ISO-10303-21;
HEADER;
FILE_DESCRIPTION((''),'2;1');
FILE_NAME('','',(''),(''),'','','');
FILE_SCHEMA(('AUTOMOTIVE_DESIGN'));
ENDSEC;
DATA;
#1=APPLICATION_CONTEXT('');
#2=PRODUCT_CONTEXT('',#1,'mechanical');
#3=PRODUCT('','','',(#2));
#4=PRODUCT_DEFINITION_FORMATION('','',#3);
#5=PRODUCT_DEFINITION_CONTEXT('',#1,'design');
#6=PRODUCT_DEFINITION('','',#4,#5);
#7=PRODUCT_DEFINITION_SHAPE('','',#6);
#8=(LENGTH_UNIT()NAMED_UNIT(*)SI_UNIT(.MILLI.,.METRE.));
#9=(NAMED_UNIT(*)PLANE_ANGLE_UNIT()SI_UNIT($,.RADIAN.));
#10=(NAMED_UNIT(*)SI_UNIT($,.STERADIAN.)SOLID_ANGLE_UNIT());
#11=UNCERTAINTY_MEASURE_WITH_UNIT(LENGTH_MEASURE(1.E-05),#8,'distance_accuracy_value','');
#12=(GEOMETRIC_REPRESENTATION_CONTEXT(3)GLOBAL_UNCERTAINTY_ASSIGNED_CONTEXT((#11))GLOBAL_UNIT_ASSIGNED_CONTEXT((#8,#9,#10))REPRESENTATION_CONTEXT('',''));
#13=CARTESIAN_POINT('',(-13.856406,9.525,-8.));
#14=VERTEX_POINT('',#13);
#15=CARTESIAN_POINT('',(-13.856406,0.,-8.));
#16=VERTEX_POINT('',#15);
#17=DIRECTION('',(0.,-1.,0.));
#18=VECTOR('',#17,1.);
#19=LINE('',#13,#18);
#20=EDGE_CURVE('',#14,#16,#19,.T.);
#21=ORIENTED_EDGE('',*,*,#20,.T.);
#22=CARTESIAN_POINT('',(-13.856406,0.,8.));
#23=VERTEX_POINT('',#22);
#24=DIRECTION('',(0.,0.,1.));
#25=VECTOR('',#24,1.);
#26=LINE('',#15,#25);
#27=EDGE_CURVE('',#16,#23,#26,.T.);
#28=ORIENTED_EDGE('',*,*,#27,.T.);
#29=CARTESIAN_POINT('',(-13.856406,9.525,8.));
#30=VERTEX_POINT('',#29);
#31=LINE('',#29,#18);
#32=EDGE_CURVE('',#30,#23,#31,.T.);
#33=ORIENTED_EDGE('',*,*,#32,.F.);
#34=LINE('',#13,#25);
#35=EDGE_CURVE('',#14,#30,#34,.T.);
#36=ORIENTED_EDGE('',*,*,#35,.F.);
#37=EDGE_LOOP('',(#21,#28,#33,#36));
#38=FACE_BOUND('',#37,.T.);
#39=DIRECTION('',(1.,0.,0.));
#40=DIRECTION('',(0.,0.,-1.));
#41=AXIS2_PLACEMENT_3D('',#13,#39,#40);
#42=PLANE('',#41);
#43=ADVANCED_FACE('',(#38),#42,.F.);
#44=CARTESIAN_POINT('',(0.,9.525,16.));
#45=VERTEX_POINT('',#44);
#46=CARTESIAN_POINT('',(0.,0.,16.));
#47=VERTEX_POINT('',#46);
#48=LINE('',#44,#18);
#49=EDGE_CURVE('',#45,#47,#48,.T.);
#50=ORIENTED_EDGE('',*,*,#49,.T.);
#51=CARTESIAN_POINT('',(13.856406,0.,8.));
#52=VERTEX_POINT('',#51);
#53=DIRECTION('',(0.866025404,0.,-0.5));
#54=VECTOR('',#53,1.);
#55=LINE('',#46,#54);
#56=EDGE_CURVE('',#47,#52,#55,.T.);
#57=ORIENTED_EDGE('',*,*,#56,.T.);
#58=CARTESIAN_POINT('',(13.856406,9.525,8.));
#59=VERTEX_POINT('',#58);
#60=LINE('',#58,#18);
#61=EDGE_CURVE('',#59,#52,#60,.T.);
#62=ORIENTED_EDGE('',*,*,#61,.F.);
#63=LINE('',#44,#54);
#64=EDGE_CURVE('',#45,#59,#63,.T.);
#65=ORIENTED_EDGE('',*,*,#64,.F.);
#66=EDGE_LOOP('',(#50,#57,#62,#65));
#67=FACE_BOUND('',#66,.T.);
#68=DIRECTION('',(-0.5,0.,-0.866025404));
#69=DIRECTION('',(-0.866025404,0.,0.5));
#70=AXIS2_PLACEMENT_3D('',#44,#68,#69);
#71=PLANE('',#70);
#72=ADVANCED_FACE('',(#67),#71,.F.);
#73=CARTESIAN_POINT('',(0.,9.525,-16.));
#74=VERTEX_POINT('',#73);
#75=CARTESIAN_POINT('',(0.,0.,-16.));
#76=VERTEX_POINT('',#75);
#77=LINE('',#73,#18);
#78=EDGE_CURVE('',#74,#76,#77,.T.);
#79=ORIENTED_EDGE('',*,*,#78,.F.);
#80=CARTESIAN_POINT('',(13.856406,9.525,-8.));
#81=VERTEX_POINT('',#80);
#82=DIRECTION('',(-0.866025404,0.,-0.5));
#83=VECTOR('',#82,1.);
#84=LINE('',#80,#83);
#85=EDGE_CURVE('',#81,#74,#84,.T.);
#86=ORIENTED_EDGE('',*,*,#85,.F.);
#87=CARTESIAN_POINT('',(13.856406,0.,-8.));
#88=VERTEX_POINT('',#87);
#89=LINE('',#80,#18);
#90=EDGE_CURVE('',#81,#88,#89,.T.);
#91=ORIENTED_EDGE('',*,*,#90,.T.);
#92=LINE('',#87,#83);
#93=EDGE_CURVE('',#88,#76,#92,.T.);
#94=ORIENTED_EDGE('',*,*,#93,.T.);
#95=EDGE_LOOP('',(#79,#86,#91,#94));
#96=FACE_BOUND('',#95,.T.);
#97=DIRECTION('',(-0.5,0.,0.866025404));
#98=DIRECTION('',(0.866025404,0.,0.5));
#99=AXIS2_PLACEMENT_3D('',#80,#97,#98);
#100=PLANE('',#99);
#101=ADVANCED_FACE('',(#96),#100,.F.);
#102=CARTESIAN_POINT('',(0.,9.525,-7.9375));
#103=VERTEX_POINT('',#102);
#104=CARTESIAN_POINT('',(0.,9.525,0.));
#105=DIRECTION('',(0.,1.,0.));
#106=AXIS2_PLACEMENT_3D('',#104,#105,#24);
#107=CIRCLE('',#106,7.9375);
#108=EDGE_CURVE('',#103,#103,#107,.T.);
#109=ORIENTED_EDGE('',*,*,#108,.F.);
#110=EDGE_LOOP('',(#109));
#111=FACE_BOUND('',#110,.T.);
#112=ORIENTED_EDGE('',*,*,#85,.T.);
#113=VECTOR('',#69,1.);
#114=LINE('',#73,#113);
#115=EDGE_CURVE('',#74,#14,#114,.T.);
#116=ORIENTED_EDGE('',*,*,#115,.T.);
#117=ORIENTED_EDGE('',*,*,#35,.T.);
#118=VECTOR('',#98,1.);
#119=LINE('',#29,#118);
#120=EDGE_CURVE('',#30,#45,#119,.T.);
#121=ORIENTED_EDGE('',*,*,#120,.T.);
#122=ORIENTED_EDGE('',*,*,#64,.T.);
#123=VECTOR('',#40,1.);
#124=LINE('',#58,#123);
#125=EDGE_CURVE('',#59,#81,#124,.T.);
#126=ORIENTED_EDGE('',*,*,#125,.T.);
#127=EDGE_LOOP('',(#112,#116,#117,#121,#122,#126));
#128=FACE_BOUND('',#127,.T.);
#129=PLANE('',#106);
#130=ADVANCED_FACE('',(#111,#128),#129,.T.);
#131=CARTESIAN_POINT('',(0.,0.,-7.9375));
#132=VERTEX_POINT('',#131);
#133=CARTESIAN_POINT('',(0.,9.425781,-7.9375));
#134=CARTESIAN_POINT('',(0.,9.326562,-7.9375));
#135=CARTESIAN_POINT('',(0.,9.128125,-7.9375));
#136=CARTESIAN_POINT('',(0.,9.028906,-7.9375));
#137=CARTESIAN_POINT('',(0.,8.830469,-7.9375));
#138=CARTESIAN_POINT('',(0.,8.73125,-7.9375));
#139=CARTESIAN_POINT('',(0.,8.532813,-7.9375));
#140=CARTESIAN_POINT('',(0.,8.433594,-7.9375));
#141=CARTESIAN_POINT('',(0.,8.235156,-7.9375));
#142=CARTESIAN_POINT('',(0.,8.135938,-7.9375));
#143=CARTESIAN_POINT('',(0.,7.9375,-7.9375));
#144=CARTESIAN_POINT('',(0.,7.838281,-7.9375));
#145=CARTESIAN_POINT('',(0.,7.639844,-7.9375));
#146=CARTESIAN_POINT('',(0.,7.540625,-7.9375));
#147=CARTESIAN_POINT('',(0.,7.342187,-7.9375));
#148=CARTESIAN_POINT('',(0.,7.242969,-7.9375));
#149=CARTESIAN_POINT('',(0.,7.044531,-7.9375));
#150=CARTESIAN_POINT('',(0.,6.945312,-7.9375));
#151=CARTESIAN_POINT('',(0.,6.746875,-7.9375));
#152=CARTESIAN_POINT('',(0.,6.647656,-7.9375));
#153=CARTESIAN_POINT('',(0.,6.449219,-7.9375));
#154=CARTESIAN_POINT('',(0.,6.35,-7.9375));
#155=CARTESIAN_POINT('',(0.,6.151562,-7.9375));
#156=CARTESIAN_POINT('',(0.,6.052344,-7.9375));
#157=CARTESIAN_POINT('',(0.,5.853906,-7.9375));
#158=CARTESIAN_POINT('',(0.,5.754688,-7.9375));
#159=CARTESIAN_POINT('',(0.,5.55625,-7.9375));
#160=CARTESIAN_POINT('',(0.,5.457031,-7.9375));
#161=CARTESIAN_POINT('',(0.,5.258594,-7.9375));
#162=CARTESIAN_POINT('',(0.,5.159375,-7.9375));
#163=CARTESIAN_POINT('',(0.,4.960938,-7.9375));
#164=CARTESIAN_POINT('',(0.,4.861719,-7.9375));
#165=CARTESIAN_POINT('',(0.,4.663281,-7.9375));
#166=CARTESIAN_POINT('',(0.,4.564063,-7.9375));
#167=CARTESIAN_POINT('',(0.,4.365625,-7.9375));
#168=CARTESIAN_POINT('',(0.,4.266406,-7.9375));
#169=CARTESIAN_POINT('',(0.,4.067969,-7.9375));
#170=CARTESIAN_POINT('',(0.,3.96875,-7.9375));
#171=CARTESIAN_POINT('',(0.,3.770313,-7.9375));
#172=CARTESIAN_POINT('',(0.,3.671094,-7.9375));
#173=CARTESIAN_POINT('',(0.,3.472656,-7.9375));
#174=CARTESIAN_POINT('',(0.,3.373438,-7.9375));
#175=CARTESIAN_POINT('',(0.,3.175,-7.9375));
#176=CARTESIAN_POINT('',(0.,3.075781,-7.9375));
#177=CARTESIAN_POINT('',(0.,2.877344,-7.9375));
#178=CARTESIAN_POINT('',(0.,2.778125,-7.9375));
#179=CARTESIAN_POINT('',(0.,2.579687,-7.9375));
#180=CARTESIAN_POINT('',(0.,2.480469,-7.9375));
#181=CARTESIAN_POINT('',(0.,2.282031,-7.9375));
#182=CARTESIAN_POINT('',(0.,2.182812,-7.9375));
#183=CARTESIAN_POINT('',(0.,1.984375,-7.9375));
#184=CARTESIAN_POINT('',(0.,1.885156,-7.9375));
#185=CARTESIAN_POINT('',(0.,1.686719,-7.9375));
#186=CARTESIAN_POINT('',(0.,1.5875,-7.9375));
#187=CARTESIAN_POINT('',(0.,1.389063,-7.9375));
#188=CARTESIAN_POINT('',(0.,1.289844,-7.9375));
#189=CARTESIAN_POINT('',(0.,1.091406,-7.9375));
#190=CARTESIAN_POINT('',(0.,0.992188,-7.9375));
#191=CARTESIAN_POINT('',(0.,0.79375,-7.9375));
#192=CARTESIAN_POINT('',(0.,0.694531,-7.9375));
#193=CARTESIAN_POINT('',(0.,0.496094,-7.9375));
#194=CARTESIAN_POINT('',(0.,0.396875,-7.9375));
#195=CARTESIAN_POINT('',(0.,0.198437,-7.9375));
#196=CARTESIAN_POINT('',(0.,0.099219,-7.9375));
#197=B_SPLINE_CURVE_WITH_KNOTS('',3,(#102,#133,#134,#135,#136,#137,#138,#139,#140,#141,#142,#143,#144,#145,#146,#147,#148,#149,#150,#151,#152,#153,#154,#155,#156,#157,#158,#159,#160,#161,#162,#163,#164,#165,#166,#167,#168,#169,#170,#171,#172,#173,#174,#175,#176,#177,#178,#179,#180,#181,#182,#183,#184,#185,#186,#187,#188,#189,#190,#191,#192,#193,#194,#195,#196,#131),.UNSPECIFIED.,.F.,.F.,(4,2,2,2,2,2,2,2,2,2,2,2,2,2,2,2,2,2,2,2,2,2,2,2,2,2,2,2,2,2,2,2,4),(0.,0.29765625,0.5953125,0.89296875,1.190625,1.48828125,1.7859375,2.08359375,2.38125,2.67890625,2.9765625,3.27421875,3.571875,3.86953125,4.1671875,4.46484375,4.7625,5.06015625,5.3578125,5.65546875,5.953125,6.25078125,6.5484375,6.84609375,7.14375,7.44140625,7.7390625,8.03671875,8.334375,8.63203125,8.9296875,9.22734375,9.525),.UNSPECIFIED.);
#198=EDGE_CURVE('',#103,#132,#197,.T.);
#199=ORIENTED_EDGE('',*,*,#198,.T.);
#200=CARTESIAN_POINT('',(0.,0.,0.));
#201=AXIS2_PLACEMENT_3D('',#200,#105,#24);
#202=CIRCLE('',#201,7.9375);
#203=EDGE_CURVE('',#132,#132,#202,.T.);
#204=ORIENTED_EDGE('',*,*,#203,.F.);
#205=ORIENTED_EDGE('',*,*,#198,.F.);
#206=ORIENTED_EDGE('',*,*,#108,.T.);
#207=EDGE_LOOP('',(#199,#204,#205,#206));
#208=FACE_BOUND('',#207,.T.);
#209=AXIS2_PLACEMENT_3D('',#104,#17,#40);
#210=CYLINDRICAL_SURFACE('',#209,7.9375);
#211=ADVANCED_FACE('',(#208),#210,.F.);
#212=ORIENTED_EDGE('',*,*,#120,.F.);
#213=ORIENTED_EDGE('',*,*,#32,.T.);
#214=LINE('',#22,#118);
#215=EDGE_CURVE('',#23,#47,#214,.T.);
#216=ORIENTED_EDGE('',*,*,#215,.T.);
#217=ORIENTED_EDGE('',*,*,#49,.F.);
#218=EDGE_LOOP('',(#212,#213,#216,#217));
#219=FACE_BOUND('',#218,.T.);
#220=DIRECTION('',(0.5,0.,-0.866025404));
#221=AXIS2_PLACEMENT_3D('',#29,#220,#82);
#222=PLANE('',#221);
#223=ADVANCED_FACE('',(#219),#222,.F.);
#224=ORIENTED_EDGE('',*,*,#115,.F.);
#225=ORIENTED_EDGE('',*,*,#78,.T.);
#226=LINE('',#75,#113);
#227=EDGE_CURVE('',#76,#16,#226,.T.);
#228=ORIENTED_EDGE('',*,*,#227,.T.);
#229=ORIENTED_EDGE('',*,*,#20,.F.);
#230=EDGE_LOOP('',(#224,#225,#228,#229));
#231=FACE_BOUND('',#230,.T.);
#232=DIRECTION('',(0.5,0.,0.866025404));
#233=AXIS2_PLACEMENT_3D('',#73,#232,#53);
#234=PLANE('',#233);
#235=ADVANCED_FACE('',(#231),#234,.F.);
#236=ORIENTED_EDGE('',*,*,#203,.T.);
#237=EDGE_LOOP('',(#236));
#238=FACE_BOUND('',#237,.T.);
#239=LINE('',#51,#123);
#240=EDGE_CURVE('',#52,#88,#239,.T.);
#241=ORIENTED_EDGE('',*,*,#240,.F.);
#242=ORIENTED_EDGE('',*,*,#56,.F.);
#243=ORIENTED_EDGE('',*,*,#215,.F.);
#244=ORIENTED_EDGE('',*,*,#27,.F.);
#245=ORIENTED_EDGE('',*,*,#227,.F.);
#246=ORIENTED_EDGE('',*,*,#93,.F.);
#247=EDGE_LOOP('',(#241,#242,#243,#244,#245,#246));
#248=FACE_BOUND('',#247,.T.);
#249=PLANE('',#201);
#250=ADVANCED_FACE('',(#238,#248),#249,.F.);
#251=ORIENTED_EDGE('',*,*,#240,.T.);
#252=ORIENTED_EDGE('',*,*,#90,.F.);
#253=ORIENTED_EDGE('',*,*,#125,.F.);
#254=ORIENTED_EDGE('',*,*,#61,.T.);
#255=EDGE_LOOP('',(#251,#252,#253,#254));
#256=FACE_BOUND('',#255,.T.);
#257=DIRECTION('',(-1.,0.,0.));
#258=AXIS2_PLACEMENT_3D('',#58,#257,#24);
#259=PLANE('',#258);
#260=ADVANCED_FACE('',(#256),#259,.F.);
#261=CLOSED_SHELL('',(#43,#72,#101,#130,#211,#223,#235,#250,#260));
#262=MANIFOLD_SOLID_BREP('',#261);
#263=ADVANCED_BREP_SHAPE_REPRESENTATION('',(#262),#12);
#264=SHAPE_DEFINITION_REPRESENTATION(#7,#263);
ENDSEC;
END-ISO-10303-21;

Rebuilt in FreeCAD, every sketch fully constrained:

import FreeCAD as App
import Part
import Sketcher
from FreeCAD import Vector
Q = App.Units.Quantity


def add_polygon(sketch, points):
    """Adds a closed chain of lines whose ends are joined by coincident constraints."""
    first, n = sketch.GeometryCount, len(points)
    for a, b in zip(points, points[1:] + points[:1]):
        sketch.addGeometry(Part.LineSegment(App.Vector(*a, 0), App.Vector(*b, 0)), False)
    for i in range(n):
        sketch.addConstraint(Sketcher.Constraint("Coincident", first + i, 2, first + (i + 1) % n, 1))

doc = App.newDocument("Part")
body = doc.addObject("PartDesign::Body", "Body")

sketch1 = doc.addObject("Sketcher::SketchObject", "Sketch")
body.addObject(sketch1)
sketch1.AttachmentSupport = (doc.XZ_Plane, [""])
sketch1.MapMode = "FlatFace"
add_polygon(sketch1, [(0, -16), (-13.856406, -8), (-13.856406, 8), (0, 16), (13.856406, 8), (13.856406, -8)])
sketch1.addGeometry(Part.Circle(Vector(0, 0, 0), Vector(0, 0, 1), 7.9375), False)
sketch1.addConstraint([
    Sketcher.Constraint("Vertical", 1),
    Sketcher.Constraint("Vertical", 4),
    Sketcher.Constraint("Coincident", 6, 3, -1, 1),
    Sketcher.Constraint("Symmetric", 0, 2, 3, 2, -1, 1),
    Sketcher.Constraint("Symmetric", 2, 2, 5, 2, -1, 1),
    Sketcher.Constraint("PointOnObject", 2, 2, -2),
    Sketcher.Constraint("Parallel", 2, 5),
    Sketcher.Constraint("Horizontal", 1, 2, 3, 2),
    Sketcher.Constraint("Diameter", 6, Q("0.625 in")),
    Sketcher.Constraint("Angle", 0, Q("150 deg")),
    Sketcher.Constraint("DistanceY", 1, 1, 1, 2, Q("16 mm")),
    Sketcher.Constraint("Distance", 0, Q("16 mm")),
])
pad1 = doc.addObject("PartDesign::Pad", "Pad")
body.addObject(pad1)
pad1.Profile = sketch1
pad1.Length = Q("0.375 in")
pad1.Reversed = True

doc.recompute()
